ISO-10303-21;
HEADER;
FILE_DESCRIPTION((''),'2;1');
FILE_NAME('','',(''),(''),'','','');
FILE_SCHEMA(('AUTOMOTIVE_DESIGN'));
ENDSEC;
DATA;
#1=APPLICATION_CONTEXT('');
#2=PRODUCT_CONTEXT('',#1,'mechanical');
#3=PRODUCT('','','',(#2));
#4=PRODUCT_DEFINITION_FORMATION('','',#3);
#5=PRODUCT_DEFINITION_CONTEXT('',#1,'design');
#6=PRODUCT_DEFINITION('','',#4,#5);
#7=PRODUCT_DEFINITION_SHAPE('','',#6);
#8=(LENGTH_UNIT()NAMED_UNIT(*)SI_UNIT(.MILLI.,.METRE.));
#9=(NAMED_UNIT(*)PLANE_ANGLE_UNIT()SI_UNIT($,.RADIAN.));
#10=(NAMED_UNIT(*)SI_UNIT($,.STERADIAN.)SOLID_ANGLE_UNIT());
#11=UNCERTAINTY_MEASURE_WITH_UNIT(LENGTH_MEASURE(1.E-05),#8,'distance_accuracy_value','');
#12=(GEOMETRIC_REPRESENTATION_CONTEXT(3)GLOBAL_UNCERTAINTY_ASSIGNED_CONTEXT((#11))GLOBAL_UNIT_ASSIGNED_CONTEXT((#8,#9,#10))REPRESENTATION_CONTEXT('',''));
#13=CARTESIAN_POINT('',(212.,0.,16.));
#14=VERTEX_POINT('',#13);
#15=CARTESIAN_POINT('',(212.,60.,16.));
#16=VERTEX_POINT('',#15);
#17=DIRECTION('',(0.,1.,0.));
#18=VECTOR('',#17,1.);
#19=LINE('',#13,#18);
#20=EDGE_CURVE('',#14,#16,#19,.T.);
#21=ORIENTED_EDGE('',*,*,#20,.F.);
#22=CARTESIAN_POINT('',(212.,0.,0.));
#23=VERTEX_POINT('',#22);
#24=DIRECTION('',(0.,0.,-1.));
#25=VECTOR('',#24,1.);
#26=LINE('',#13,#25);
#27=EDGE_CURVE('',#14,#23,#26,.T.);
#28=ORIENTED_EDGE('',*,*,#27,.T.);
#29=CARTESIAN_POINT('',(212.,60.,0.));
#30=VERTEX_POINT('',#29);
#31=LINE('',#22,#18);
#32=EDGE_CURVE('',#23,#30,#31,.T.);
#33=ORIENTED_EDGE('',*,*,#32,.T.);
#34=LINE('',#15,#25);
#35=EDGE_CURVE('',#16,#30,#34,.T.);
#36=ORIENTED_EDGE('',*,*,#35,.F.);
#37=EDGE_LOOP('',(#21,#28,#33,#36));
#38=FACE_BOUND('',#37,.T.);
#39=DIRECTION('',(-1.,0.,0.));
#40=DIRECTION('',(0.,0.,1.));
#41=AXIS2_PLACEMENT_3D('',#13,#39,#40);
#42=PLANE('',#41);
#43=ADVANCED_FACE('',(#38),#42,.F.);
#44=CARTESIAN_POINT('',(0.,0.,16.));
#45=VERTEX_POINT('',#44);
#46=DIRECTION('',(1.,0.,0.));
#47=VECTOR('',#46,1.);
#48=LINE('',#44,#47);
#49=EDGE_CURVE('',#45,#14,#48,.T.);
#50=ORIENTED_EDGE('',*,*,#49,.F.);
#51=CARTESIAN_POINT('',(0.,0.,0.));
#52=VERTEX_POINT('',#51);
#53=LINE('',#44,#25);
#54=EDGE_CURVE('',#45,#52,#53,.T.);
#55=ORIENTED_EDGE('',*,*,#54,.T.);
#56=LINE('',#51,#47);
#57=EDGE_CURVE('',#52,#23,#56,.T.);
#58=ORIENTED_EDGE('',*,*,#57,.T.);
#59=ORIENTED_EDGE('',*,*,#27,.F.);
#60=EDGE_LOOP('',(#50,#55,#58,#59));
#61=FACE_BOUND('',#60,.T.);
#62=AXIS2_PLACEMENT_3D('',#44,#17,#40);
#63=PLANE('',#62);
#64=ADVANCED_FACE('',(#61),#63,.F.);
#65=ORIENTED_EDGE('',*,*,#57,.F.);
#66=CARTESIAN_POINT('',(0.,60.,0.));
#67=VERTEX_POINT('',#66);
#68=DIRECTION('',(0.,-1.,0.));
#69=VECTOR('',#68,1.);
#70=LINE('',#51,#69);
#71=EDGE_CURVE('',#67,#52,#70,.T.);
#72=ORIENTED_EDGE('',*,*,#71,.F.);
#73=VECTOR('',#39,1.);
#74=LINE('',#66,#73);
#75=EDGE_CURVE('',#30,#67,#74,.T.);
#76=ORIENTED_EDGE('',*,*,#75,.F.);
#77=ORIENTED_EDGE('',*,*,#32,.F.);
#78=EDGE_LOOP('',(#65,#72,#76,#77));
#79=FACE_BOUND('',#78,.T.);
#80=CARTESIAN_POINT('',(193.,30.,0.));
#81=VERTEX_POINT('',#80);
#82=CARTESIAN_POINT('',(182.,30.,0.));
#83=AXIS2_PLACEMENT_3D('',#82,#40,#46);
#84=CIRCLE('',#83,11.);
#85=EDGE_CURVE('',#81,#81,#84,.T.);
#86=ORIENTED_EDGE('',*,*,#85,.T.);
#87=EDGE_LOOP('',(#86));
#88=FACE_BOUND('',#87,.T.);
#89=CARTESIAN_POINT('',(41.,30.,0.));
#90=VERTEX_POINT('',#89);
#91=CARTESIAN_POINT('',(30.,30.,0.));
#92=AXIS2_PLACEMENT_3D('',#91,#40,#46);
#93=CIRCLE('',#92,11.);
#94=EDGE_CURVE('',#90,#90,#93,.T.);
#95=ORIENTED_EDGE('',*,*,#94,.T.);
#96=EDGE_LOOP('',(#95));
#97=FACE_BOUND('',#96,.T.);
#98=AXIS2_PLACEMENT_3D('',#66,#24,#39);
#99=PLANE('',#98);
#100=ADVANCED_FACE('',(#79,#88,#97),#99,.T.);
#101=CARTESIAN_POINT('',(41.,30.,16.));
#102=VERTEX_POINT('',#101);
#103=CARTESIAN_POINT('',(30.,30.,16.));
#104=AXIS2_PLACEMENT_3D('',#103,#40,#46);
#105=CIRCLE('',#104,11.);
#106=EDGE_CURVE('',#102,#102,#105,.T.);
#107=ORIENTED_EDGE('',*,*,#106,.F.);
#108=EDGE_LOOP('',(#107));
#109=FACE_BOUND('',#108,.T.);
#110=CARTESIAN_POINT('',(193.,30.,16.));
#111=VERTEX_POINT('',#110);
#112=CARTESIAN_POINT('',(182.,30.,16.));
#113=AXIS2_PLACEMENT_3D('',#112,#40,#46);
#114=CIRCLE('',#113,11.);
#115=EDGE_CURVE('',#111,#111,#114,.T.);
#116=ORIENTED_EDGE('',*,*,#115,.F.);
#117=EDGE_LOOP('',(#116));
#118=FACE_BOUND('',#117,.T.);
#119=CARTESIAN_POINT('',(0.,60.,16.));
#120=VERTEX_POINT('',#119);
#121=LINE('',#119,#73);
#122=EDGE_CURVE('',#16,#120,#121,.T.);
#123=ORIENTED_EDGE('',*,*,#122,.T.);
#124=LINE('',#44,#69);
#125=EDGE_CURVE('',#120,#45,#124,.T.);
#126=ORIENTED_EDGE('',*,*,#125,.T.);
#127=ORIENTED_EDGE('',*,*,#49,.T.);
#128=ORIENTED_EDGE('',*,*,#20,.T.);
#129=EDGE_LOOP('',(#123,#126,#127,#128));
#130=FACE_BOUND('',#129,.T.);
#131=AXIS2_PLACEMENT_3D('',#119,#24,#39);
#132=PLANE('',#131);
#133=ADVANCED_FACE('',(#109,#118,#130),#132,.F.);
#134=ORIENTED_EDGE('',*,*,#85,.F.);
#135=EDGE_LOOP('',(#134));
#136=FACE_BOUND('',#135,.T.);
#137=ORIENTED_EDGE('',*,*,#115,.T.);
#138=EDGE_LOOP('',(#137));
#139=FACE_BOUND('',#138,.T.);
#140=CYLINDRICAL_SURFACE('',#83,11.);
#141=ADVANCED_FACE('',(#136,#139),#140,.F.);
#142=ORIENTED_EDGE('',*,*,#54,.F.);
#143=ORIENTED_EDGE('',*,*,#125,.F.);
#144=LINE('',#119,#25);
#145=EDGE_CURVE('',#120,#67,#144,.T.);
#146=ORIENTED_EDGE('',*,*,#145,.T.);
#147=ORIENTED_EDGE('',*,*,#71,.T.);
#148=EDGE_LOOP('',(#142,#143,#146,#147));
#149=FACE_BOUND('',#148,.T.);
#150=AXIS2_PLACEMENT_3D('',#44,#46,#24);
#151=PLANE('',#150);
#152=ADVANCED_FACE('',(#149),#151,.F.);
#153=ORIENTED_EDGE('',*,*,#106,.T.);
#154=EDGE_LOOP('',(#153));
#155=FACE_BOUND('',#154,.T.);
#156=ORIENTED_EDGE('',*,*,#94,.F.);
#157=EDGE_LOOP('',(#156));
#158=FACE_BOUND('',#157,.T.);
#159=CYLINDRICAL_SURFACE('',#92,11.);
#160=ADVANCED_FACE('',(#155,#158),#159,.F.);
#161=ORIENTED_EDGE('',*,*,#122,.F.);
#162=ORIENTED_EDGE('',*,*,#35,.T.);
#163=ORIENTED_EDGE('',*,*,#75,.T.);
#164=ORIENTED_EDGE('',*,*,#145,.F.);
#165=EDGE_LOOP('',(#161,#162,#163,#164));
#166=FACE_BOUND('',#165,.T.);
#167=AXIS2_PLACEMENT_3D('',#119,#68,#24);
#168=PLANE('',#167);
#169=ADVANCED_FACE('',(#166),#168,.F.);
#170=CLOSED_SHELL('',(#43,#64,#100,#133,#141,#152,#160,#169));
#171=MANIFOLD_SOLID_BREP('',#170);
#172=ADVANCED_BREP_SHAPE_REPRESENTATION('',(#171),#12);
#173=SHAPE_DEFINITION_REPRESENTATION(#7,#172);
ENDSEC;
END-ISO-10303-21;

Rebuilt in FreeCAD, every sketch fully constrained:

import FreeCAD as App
import Part
import Sketcher
from FreeCAD import Vector
Q = App.Units.Quantity

doc = App.newDocument("Part")
body = doc.addObject("PartDesign::Body", "Body")

# Sketch on XY plane
sketch1 = doc.addObject("Sketcher::SketchObject", "Sketch")
body.addObject(sketch1)
sketch1.AttachmentSupport = (doc.XY_Plane, [""])
sketch1.MapMode = "FlatFace"
sketch1.addGeometry(Part.LineSegment(Vector(0, 60, 0), Vector(0, 0, 0)), False)
sketch1.addGeometry(Part.LineSegment(Vector(0, 0, 0), Vector(212, 0, 0)), False)
sketch1.addGeometry(Part.LineSegment(Vector(212, 0, 0), Vector(212, 60, 0)), False)
sketch1.addGeometry(Part.LineSegment(Vector(212, 60, 0), Vector(0, 60, 0)), False)
sketch1.addConstraint(Sketcher.Constraint("Coincident", 0, 2, 1, 1))
sketch1.addConstraint(Sketcher.Constraint("Coincident", 1, 2, 2, 1))
sketch1.addConstraint(Sketcher.Constraint("Coincident", 2, 2, 3, 1))
sketch1.addConstraint(Sketcher.Constraint("Coincident", 3, 2, 0, 1))
sketch1.addConstraint(Sketcher.Constraint("Vertical", 0))
sketch1.addConstraint(Sketcher.Constraint("Horizontal", 1))
sketch1.addConstraint(Sketcher.Constraint("Vertical", 2))
sketch1.addConstraint(Sketcher.Constraint("Horizontal", 3))
sketch1.addConstraint(Sketcher.Constraint("Coincident", 0, 2, -1, 1))
sketch1.addConstraint(Sketcher.Constraint("DistanceX", 1, 1, 1, 2, Q("212 mm")))
sketch1.addConstraint(Sketcher.Constraint("DistanceY", 0, 2, 0, 1, Q("60 mm")))
pad1 = doc.addObject("PartDesign::Pad", "Pad")
body.addObject(pad1)
pad1.Profile = sketch1
pad1.Length = 16

# Sketch on XY plane
sketch2 = doc.addObject("Sketcher::SketchObject", "Sketch001")
body.addObject(sketch2)
sketch2.AttachmentSupport = (doc.XY_Plane, [""])
sketch2.MapMode = "FlatFace"
sketch2.AttachmentOffset = App.Placement(Vector(0, 0, 16), App.Rotation())
sketch2.addGeometry(Part.Circle(Vector(30, 30, 0), Vector(0, 0, 1), 11), False)
sketch2.addGeometry(Part.Circle(Vector(182, 30, 0), Vector(0, 0, 1), 11), False)
sketch2.addConstraint(Sketcher.Constraint("Equal", 0, 1))
sketch2.addConstraint(Sketcher.Constraint("Horizontal", 0, 3, 1, 3))
sketch2.addConstraint(Sketcher.Constraint("Diameter", 0, Q("22 mm")))
sketch2.addConstraint(Sketcher.Constraint("DistanceX", -1, 1, 0, 3, Q("30 mm")))
sketch2.addConstraint(Sketcher.Constraint("DistanceY", -1, 1, 0, 3, Q("30 mm")))
sketch2.addConstraint(Sketcher.Constraint("DistanceX", -1, 1, 1, 3, Q("182 mm")))
pocket1 = doc.addObject("PartDesign::Pocket", "Pocket")
body.addObject(pocket1)
pocket1.Profile = sketch2
pocket1.Type = "ThroughAll"

doc.recompute()
